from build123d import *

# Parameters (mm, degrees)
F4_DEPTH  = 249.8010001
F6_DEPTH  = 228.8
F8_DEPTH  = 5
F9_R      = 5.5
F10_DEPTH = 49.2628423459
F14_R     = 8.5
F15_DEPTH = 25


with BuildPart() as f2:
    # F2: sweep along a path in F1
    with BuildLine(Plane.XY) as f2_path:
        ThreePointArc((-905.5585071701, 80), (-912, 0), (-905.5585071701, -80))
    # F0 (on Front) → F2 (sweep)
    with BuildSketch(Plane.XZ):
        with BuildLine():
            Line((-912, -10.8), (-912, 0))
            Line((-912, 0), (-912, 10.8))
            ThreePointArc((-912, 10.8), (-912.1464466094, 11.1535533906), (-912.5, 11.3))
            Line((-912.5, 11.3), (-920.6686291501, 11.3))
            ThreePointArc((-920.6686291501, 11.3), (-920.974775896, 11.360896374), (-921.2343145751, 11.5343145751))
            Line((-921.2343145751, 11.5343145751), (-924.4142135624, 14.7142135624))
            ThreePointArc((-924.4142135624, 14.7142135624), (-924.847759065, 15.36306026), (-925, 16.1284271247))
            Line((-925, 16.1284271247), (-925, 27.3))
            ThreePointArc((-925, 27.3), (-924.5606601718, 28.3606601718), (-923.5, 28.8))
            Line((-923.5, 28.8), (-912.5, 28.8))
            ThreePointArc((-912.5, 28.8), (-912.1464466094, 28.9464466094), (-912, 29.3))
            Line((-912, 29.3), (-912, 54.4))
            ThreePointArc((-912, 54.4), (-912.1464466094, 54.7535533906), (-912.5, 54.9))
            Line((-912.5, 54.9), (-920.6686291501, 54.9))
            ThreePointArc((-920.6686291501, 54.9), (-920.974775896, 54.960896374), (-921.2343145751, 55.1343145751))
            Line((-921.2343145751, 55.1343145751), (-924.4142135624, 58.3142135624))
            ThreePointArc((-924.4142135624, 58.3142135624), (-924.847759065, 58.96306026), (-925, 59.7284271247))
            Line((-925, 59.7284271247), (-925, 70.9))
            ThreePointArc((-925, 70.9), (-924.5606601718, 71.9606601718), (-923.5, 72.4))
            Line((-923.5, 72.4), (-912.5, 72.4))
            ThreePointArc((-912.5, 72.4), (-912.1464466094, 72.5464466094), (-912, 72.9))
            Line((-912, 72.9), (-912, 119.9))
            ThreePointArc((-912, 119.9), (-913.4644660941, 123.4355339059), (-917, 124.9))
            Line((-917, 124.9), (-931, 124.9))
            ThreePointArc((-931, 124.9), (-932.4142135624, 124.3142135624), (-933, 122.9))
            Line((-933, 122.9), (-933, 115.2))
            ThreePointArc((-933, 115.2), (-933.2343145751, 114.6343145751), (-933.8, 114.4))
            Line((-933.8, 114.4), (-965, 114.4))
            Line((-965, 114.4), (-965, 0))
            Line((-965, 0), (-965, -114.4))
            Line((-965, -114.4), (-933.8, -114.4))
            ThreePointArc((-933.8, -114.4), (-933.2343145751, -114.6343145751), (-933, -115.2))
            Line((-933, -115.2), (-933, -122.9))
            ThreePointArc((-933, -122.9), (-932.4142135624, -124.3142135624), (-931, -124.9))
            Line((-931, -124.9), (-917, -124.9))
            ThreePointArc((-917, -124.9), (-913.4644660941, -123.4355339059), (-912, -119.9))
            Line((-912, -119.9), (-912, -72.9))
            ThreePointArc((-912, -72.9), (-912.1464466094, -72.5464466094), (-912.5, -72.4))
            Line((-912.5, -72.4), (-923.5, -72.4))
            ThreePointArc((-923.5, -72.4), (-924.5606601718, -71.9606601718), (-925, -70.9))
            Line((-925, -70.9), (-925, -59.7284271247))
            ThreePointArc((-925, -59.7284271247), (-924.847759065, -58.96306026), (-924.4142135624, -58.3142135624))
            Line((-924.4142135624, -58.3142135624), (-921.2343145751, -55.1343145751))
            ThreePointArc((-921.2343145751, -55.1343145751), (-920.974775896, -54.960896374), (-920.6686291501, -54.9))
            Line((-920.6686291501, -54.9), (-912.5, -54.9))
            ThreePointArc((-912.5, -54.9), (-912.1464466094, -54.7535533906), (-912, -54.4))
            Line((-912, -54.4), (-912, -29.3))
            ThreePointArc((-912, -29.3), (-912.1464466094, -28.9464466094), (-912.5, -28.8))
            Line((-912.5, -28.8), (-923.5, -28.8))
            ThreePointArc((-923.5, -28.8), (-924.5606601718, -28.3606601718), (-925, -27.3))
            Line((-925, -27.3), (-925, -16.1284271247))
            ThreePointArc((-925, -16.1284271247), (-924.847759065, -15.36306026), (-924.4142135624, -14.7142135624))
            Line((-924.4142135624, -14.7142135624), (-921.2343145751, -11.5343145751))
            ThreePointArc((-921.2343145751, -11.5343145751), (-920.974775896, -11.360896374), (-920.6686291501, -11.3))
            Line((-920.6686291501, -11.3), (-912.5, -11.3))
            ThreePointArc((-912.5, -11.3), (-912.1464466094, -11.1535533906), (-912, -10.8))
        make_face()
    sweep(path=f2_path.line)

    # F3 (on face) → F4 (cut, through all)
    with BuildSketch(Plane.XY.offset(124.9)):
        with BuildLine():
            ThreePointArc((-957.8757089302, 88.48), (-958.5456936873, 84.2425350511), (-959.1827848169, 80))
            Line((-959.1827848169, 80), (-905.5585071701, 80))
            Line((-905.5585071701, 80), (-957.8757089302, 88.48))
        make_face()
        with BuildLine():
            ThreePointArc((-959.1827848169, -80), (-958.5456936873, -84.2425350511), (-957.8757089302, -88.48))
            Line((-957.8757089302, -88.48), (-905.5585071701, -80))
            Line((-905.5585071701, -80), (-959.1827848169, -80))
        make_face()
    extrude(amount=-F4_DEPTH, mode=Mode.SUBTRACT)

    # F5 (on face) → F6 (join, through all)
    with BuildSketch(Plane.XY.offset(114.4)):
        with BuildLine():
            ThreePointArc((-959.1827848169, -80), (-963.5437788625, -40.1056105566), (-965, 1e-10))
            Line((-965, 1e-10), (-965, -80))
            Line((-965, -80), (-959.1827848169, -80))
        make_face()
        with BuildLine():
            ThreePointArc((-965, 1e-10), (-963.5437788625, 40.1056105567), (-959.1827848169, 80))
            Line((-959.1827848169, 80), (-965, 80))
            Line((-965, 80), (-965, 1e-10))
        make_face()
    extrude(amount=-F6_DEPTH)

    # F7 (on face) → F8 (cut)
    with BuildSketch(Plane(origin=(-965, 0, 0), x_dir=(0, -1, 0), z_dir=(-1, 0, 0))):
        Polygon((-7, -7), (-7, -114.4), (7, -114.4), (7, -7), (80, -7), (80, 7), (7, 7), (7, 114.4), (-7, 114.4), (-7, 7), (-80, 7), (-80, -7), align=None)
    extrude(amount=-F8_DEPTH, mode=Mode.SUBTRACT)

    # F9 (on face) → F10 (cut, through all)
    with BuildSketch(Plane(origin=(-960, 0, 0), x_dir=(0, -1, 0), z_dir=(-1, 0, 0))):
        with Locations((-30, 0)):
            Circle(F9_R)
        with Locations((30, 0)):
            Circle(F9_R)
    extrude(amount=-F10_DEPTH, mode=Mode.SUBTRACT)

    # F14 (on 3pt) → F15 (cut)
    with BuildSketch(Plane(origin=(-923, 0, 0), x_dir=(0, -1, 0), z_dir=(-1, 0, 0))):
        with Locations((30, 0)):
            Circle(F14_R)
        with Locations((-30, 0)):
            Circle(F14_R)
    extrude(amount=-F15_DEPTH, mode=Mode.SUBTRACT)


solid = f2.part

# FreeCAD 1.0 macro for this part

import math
import FreeCAD as App
import Part
import Sketcher

doc = App.newDocument("Part")
body = doc.addObject("PartDesign::Body", "Body")

# Sketch on XZ plane
sketch1 = body.newObject("Sketcher::SketchObject", "Sketch")
sketch1.AttachmentSupport = (doc.getObject("XZ_Plane"), [""])
sketch1.MapMode = "FlatFace"
sketch1.addGeometry([
    Part.LineSegment(App.Vector(-912, -10.8, 0), App.Vector(-912, 10.8, 0)),  # 0
    Part.ArcOfCircle(Part.Circle(App.Vector(-912.5, 10.8, 0), App.Vector(0, 0, 1), 0.5), math.radians(0), math.radians(90)),  # 1
    Part.LineSegment(App.Vector(-912.5, 11.3, 0), App.Vector(-920.668629, 11.3, 0)),  # 2
    Part.ArcOfCircle(Part.Circle(App.Vector(-920.668629, 12.1, 0), App.Vector(0, 0, 1), 0.8), math.radians(-135), math.radians(-90)),  # 3
    Part.LineSegment(App.Vector(-921.234315, 11.534315, 0), App.Vector(-924.414214, 14.714214, 0)),  # 4
    Part.ArcOfCircle(Part.Circle(App.Vector(-923, 16.128427, 0), App.Vector(0, 0, 1), 2), math.radians(180), math.radians(225)),  # 5
    Part.LineSegment(App.Vector(-925, 16.128427, 0), App.Vector(-925, 27.3, 0)),  # 6
    Part.ArcOfCircle(Part.Circle(App.Vector(-923.5, 27.3, 0), App.Vector(0, 0, 1), 1.5), math.radians(90), math.radians(180)),  # 7
    Part.LineSegment(App.Vector(-923.5, 28.8, 0), App.Vector(-912.5, 28.8, 0)),  # 8
    Part.ArcOfCircle(Part.Circle(App.Vector(-912.5, 29.3, 0), App.Vector(0, 0, 1), 0.5), math.radians(-90), math.radians(0)),  # 9
    Part.LineSegment(App.Vector(-912, 29.3, 0), App.Vector(-912, 54.4, 0)),  # 10
    Part.ArcOfCircle(Part.Circle(App.Vector(-912.5, 54.4, 0), App.Vector(0, 0, 1), 0.5), math.radians(0), math.radians(90)),  # 11
    Part.LineSegment(App.Vector(-912.5, 54.9, 0), App.Vector(-920.668629, 54.9, 0)),  # 12
    Part.ArcOfCircle(Part.Circle(App.Vector(-920.668629, 55.7, 0), App.Vector(0, 0, 1), 0.8), math.radians(-135), math.radians(-90)),  # 13
    Part.LineSegment(App.Vector(-921.234315, 55.134315, 0), App.Vector(-924.414214, 58.314214, 0)),  # 14
    Part.ArcOfCircle(Part.Circle(App.Vector(-923, 59.728427, 0), App.Vector(0, 0, 1), 2), math.radians(180), math.radians(225)),  # 15
    Part.LineSegment(App.Vector(-925, 59.728427, 0), App.Vector(-925, 70.9, 0)),  # 16
    Part.ArcOfCircle(Part.Circle(App.Vector(-923.5, 70.9, 0), App.Vector(0, 0, 1), 1.5), math.radians(90), math.radians(180)),  # 17
    Part.LineSegment(App.Vector(-923.5, 72.4, 0), App.Vector(-912.5, 72.4, 0)),  # 18
    Part.ArcOfCircle(Part.Circle(App.Vector(-912.5, 72.9, 0), App.Vector(0, 0, 1), 0.5), math.radians(-90), math.radians(0)),  # 19
    Part.LineSegment(App.Vector(-912, 72.9, 0), App.Vector(-912, 119.9, 0)),  # 20
    Part.ArcOfCircle(Part.Circle(App.Vector(-917, 119.9, 0), App.Vector(0, 0, 1), 5), math.radians(0), math.radians(90)),  # 21
    Part.LineSegment(App.Vector(-917, 124.9, 0), App.Vector(-931, 124.9, 0)),  # 22
    Part.ArcOfCircle(Part.Circle(App.Vector(-931, 122.9, 0), App.Vector(0, 0, 1), 2), math.radians(90), math.radians(180)),  # 23
    Part.LineSegment(App.Vector(-933, 122.9, 0), App.Vector(-933, 115.2, 0)),  # 24
    Part.ArcOfCircle(Part.Circle(App.Vector(-933.8, 115.2, 0), App.Vector(0, 0, 1), 0.8), math.radians(-90), math.radians(0)),  # 25
    Part.LineSegment(App.Vector(-933.8, 114.4, 0), App.Vector(-965, 114.4, 0)),  # 26
    Part.LineSegment(App.Vector(-965, 114.4, 0), App.Vector(-965, -114.4, 0)),  # 27
    Part.LineSegment(App.Vector(-965, -114.4, 0), App.Vector(-933.8, -114.4, 0)),  # 28
    Part.ArcOfCircle(Part.Circle(App.Vector(-933.8, -115.2, 0), App.Vector(0, 0, 1), 0.8), math.radians(0), math.radians(90)),  # 29
    Part.LineSegment(App.Vector(-933, -115.2, 0), App.Vector(-933, -122.9, 0)),  # 30
    Part.ArcOfCircle(Part.Circle(App.Vector(-931, -122.9, 0), App.Vector(0, 0, 1), 2), math.radians(180), math.radians(270)),  # 31
    Part.LineSegment(App.Vector(-931, -124.9, 0), App.Vector(-917, -124.9, 0)),  # 32
    Part.ArcOfCircle(Part.Circle(App.Vector(-917, -119.9, 0), App.Vector(0, 0, 1), 5), math.radians(-90), math.radians(0)),  # 33
    Part.LineSegment(App.Vector(-912, -119.9, 0), App.Vector(-912, -72.9, 0)),  # 34
    Part.ArcOfCircle(Part.Circle(App.Vector(-912.5, -72.9, 0), App.Vector(0, 0, 1), 0.5), math.radians(0), math.radians(90)),  # 35
    Part.LineSegment(App.Vector(-912.5, -72.4, 0), App.Vector(-923.5, -72.4, 0)),  # 36
    Part.ArcOfCircle(Part.Circle(App.Vector(-923.5, -70.9, 0), App.Vector(0, 0, 1), 1.5), math.radians(180), math.radians(270)),  # 37
    Part.LineSegment(App.Vector(-925, -70.9, 0), App.Vector(-925, -59.728427, 0)),  # 38
    Part.ArcOfCircle(Part.Circle(App.Vector(-923, -59.728427, 0), App.Vector(0, 0, 1), 2), math.radians(135), math.radians(180)),  # 39
    Part.LineSegment(App.Vector(-924.414214, -58.314214, 0), App.Vector(-921.234315, -55.134315, 0)),  # 40
    Part.ArcOfCircle(Part.Circle(App.Vector(-920.668629, -55.7, 0), App.Vector(0, 0, 1), 0.8), math.radians(90), math.radians(135)),  # 41
    Part.LineSegment(App.Vector(-920.668629, -54.9, 0), App.Vector(-912.5, -54.9, 0)),  # 42
    Part.ArcOfCircle(Part.Circle(App.Vector(-912.5, -54.4, 0), App.Vector(0, 0, 1), 0.5), math.radians(-90), math.radians(0)),  # 43
    Part.LineSegment(App.Vector(-912, -54.4, 0), App.Vector(-912, -29.3, 0)),  # 44
    Part.ArcOfCircle(Part.Circle(App.Vector(-912.5, -29.3, 0), App.Vector(0, 0, 1), 0.5), math.radians(0), math.radians(90)),  # 45
    Part.LineSegment(App.Vector(-912.5, -28.8, 0), App.Vector(-923.5, -28.8, 0)),  # 46
    Part.ArcOfCircle(Part.Circle(App.Vector(-923.5, -27.3, 0), App.Vector(0, 0, 1), 1.5), math.radians(180), math.radians(270)),  # 47
    Part.LineSegment(App.Vector(-925, -27.3, 0), App.Vector(-925, -16.128427, 0)),  # 48
    Part.ArcOfCircle(Part.Circle(App.Vector(-923, -16.128427, 0), App.Vector(0, 0, 1), 2), math.radians(135), math.radians(180)),  # 49
    Part.LineSegment(App.Vector(-924.414214, -14.714214, 0), App.Vector(-921.234315, -11.534315, 0)),  # 50
    Part.ArcOfCircle(Part.Circle(App.Vector(-920.668629, -12.1, 0), App.Vector(0, 0, 1), 0.8), math.radians(90), math.radians(135)),  # 51
    Part.LineSegment(App.Vector(-920.668629, -11.3, 0), App.Vector(-912.5, -11.3, 0)),  # 52
    Part.ArcOfCircle(Part.Circle(App.Vector(-912.5, -10.8, 0), App.Vector(0, 0, 1), 0.5), math.radians(-90), math.radians(0)),  # 53
], False)
sketch1.addConstraint([
    Sketcher.Constraint("Tangent", 0, 2, 1, 1),
    Sketcher.Constraint("Tangent", 1, 2, 2, 1),
    Sketcher.Constraint("Tangent", 2, 2, 3, 2),
    Sketcher.Constraint("Tangent", 3, 1, 4, 1),
    Sketcher.Constraint("Tangent", 4, 2, 5, 2),
    Sketcher.Constraint("Tangent", 5, 1, 6, 1),
    Sketcher.Constraint("Tangent", 6, 2, 7, 2),
    Sketcher.Constraint("Tangent", 7, 1, 8, 1),
    Sketcher.Constraint("Tangent", 8, 2, 9, 1),
    Sketcher.Constraint("Tangent", 9, 2, 10, 1),
    Sketcher.Constraint("Tangent", 10, 2, 11, 1),
    Sketcher.Constraint("Tangent", 11, 2, 12, 1),
    Sketcher.Constraint("Tangent", 12, 2, 13, 2),
    Sketcher.Constraint("Tangent", 13, 1, 14, 1),
    Sketcher.Constraint("Tangent", 14, 2, 15, 2),
    Sketcher.Constraint("Tangent", 15, 1, 16, 1),
    Sketcher.Constraint("Tangent", 16, 2, 17, 2),
    Sketcher.Constraint("Tangent", 17, 1, 18, 1),
    Sketcher.Constraint("Tangent", 18, 2, 19, 1),
    Sketcher.Constraint("Tangent", 19, 2, 20, 1),
    Sketcher.Constraint("Tangent", 20, 2, 21, 1),
    Sketcher.Constraint("Tangent", 21, 2, 22, 1),
    Sketcher.Constraint("Tangent", 22, 2, 23, 1),
    Sketcher.Constraint("Tangent", 23, 2, 24, 1),
    Sketcher.Constraint("Tangent", 24, 2, 25, 2),
    Sketcher.Constraint("Tangent", 25, 1, 26, 1),
    Sketcher.Constraint("Coincident", 26, 2, 27, 1),
    Sketcher.Constraint("Coincident", 27, 2, 28, 1),
    Sketcher.Constraint("Tangent", 28, 2, 29, 2),
    Sketcher.Constraint("Tangent", 29, 1, 30, 1),
    Sketcher.Constraint("Tangent", 30, 2, 31, 1),
    Sketcher.Constraint("Tangent", 31, 2, 32, 1),
    Sketcher.Constraint("Tangent", 32, 2, 33, 1),
    Sketcher.Constraint("Tangent", 33, 2, 34, 1),
    Sketcher.Constraint("Tangent", 34, 2, 35, 1),
    Sketcher.Constraint("Tangent", 35, 2, 36, 1),
    Sketcher.Constraint("Tangent", 36, 2, 37, 2),
    Sketcher.Constraint("Tangent", 37, 1, 38, 1),
    Sketcher.Constraint("Tangent", 38, 2, 39, 2),
    Sketcher.Constraint("Tangent", 39, 1, 40, 1),
    Sketcher.Constraint("Tangent", 40, 2, 41, 2),
    Sketcher.Constraint("Tangent", 41, 1, 42, 1),
    Sketcher.Constraint("Tangent", 42, 2, 43, 1),
    Sketcher.Constraint("Tangent", 43, 2, 44, 1),
    Sketcher.Constraint("Tangent", 44, 2, 45, 1),
    Sketcher.Constraint("Tangent", 45, 2, 46, 1),
    Sketcher.Constraint("Tangent", 46, 2, 47, 2),
    Sketcher.Constraint("Tangent", 47, 1, 48, 1),
    Sketcher.Constraint("Tangent", 48, 2, 49, 2),
    Sketcher.Constraint("Tangent", 49, 1, 50, 1),
    Sketcher.Constraint("Tangent", 50, 2, 51, 2),
    Sketcher.Constraint("Tangent", 51, 1, 52, 1),
    Sketcher.Constraint("Tangent", 52, 2, 53, 1),
    Sketcher.Constraint("Tangent", 53, 2, 0, 1),
    Sketcher.Constraint("Vertical", 0),
    Sketcher.Constraint("Horizontal", 2),
    Sketcher.Constraint("Vertical", 6),
    Sketcher.Constraint("Horizontal", 8),
    Sketcher.Constraint("Vertical", 10),
    Sketcher.Constraint("Horizontal", 12),
    Sketcher.Constraint("Vertical", 16),
    Sketcher.Constraint("Horizontal", 18),
    Sketcher.Constraint("Vertical", 20),
    Sketcher.Constraint("Horizontal", 22),
    Sketcher.Constraint("Vertical", 24),
    Sketcher.Constraint("Horizontal", 26),
    Sketcher.Constraint("Vertical", 27),
    Sketcher.Constraint("Horizontal", 28),
    Sketcher.Constraint("Vertical", 30),
    Sketcher.Constraint("Horizontal", 32),
    Sketcher.Constraint("Vertical", 34),
    Sketcher.Constraint("Horizontal", 36),
    Sketcher.Constraint("Vertical", 38),
    Sketcher.Constraint("Horizontal", 42),
    Sketcher.Constraint("Vertical", 44),
    Sketcher.Constraint("Horizontal", 46),
    Sketcher.Constraint("Vertical", 48),
    Sketcher.Constraint("Horizontal", 52),
    Sketcher.Constraint("Equal", 1, 9),
    Sketcher.Constraint("Equal", 9, 11),
    Sketcher.Constraint("Equal", 3, 13),
    Sketcher.Constraint("Equal", 5, 15),
    Sketcher.Constraint("Equal", 7, 17),
    Sketcher.Constraint("Equal", 11, 19),
    Sketcher.Constraint("Equal", 15, 23),
    Sketcher.Constraint("Equal", 13, 25),
    Sketcher.Constraint("Equal", 25, 29),
    Sketcher.Constraint("Equal", 23, 31),
    Sketcher.Constraint("Equal", 21, 33),
    Sketcher.Constraint("Equal", 19, 35),
    Sketcher.Constraint("Equal", 17, 37),
    Sketcher.Constraint("Equal", 31, 39),
    Sketcher.Constraint("Equal", 29, 41),
    Sketcher.Constraint("Equal", 35, 43),
    Sketcher.Constraint("Equal", 43, 45),
    Sketcher.Constraint("Equal", 37, 47),
    Sketcher.Constraint("Equal", 39, 49),
    Sketcher.Constraint("Equal", 41, 51),
    Sketcher.Constraint("Equal", 45, 53),
    Sketcher.Constraint("Symmetric", 25, 3, 29, 3, -1),
    Sketcher.Constraint("Symmetric", 21, 3, 33, 3, -1),
    Sketcher.Constraint("Symmetric", 17, 3, 37, 3, -1),
    Sketcher.Constraint("Symmetric", 13, 3, 41, 3, -1),
    Sketcher.Constraint("Symmetric", 9, 3, 45, 3, -1),
    Sketcher.Constraint("Symmetric", 5, 3, 49, 3, -1),
    Sketcher.Constraint("Symmetric", 3, 3, 51, 3, -1),
    Sketcher.Constraint("Parallel", 4, 14),
    Sketcher.Constraint("Perpendicular", 14, 40),
    Sketcher.Constraint("Parallel", 40, 50),
    Sketcher.Constraint("Vertical", 1, 3, 9, 3),
    Sketcher.Constraint("Vertical", 3, 3, 13, 3),
    Sketcher.Constraint("Vertical", 5, 3, 15, 3),
    Sketcher.Constraint("Vertical", 11, 3, 19, 3),
    Sketcher.Constraint("Equal", 6, 16),
    Sketcher.Constraint("Radius", 5, 2.0),
    Sketcher.Constraint("Radius", 21, 5.0),
    Sketcher.Constraint("Radius", 1, 0.5),
    Sketcher.Constraint("Radius", 3, 0.8),
    Sketcher.Constraint("Radius", 7, 1.5),
    Sketcher.Constraint("DistanceX", 8, 1, 8, 2, 11.0),
    Sketcher.Constraint("DistanceX", 22, 2, 22, 1, 14.0),
    Sketcher.Constraint("DistanceY", 20, 1, 20, 2, 47.0),
    Sketcher.Constraint("DistanceX", 26, 2, 26, 1, 31.2),
    Sketcher.Constraint("DistanceY", 0, 1, 0, 2, 21.6),
    Sketcher.Constraint("DistanceY", 10, 1, 10, 2, 25.1),
    Sketcher.Constraint("DistanceY", 24, 2, 24, 1, 7.7),
    Sketcher.Constraint("DistanceY", 27, 2, 27, 1, 228.8),
    Sketcher.Constraint("DistanceX", 5, 3, -1, 1, 923.0),
    Sketcher.Constraint("DistanceX", 2, 2, 2, 1, 8.168629),
])

# Sketch on XY plane
sketch2 = body.newObject("Sketcher::SketchObject", "Sketch001")
sketch2.AttachmentSupport = (doc.getObject("XY_Plane"), [""])
sketch2.MapMode = "FlatFace"
sketch2.addGeometry(Part.ArcOfCircle(Part.Circle(App.Vector(-412, 0, 0), App.Vector(0, 0, 1), 500), math.radians(170.793104), math.radians(189.206896)), False)
sketch2.addConstraint([
    Sketcher.Constraint("Symmetric", 0, 1, 0, 2, -1),
    Sketcher.Constraint("Radius", 0, 500.0),
    Sketcher.Constraint("DistanceX", 0, 3, -1, 1, 412.0),
    Sketcher.Constraint("DistanceY", -1, 1, 0, 1, 80.0),
])
doc.recompute()

additivepipe = body.newObject("PartDesign::AdditivePipe", "AdditivePipe")
additivepipe.Profile = sketch1
additivepipe.Spine = (sketch2, ["Edge1"])

# Sketch on XY plane
sketch3 = body.newObject("Sketcher::SketchObject", "Sketch002")
sketch3.AttachmentSupport = (doc.getObject("XY_Plane"), [""])
sketch3.MapMode = "FlatFace"
sketch3.AttachmentOffset = App.Placement(App.Vector(0, 0, 124.9), App.Rotation())
sketch3.addGeometry([
    Part.ArcOfCircle(Part.Circle(App.Vector(-411.999999, 0, 0), App.Vector(0, 0, 1), 553.000001), math.radians(170.793104), math.radians(171.682093)),  # 0
    Part.LineSegment(App.Vector(-959.182785, 80, 0), App.Vector(-905.558507, 80, 0)),  # 1
    Part.LineSegment(App.Vector(-905.558507, 80, 0), App.Vector(-957.875709, 88.48, 0)),  # 2
    Part.ArcOfCircle(Part.Circle(App.Vector(-411.999999, 0, 0), App.Vector(0, 0, 1), 553.000001), math.radians(-171.682093), math.radians(-170.793104)),  # 3
    Part.LineSegment(App.Vector(-957.875709, -88.48, 0), App.Vector(-905.558507, -80, 0)),  # 4
    Part.LineSegment(App.Vector(-905.558507, -80, 0), App.Vector(-959.182785, -80, 0)),  # 5
], False)
sketch3.addConstraint([
    Sketcher.Constraint("Coincident", 0, 2, 1, 1),
    Sketcher.Constraint("Coincident", 1, 2, 2, 1),
    Sketcher.Constraint("Coincident", 2, 2, 0, 1),
    Sketcher.Constraint("Coincident", 3, 2, 4, 1),
    Sketcher.Constraint("Coincident", 4, 2, 5, 1),
    Sketcher.Constraint("Coincident", 5, 2, 3, 1),
    Sketcher.Constraint("Horizontal", 1),
    Sketcher.Constraint("Horizontal", 5),
    Sketcher.Constraint("Coincident", 3, 3, 0, 3),
    Sketcher.Constraint("Equal", 0, 3),
    Sketcher.Constraint("Symmetric", 1, 2, 4, 2, -1),
    Sketcher.Constraint("PointOnObject", 0, 3, -1),
    Sketcher.Constraint("Vertical", 2, 2, 3, 2),
    Sketcher.Constraint("Radius", 0, 553.000001),
    Sketcher.Constraint("Distance", 2, 53.0),
    Sketcher.Constraint("DistanceX", 0, 3, -1, 1, 411.999999),
    Sketcher.Constraint("DistanceY", -1, 1, 1, 2, 80.0),
    Sketcher.Constraint("DistanceY", -1, 1, 2, 2, 88.48),
])
pocket1 = body.newObject("PartDesign::Pocket", "Pocket")
pocket1.Profile = sketch3
pocket1.Type = "ThroughAll"

# Sketch on XY plane
sketch4 = body.newObject("Sketcher::SketchObject", "Sketch003")
sketch4.AttachmentSupport = (doc.getObject("XY_Plane"), [""])
sketch4.MapMode = "FlatFace"
sketch4.AttachmentOffset = App.Placement(App.Vector(0, 0, 114.4), App.Rotation())
sketch4.addGeometry([
    Part.ArcOfCircle(Part.Circle(App.Vector(-412, 0, 0), App.Vector(0, 0, 1), 553), math.radians(180), math.radians(188.317907)),  # 0
    Part.LineSegment(App.Vector(-965, 0, 0), App.Vector(-965, -80, 0)),  # 1
    Part.LineSegment(App.Vector(-965, -80, 0), App.Vector(-959.182785, -80, 0)),  # 2
    Part.ArcOfCircle(Part.Circle(App.Vector(-412, 0, 0), App.Vector(0, 0, 1), 553), math.radians(171.682093), math.radians(180)),  # 3
    Part.LineSegment(App.Vector(-959.182785, 80, 0), App.Vector(-965, 80, 0)),  # 4
    Part.LineSegment(App.Vector(-965, 80, 0), App.Vector(-965, 0, 0)),  # 5
], False)
sketch4.addConstraint([
    Sketcher.Constraint("Tangent", 0, 1, 1, 1),
    Sketcher.Constraint("Coincident", 1, 2, 2, 1),
    Sketcher.Constraint("Coincident", 2, 2, 0, 2),
    Sketcher.Constraint("Coincident", 3, 1, 4, 1),
    Sketcher.Constraint("Coincident", 4, 2, 5, 1),
    Sketcher.Constraint("Tangent", 5, 2, 3, 2),
    Sketcher.Constraint("Vertical", 1),
    Sketcher.Constraint("Horizontal", 2),
    Sketcher.Constraint("Horizontal", 4),
    Sketcher.Constraint("Vertical", 5),
    Sketcher.Constraint("Coincident", 3, 3, 0, 3),
    Sketcher.Constraint("Equal", 0, 3),
    Sketcher.Constraint("PointOnObject", 0, 3, -1),
    Sketcher.Constraint("Equal", 2, 4),
    Sketcher.Constraint("Radius", 0, 553.0),
    Sketcher.Constraint("DistanceY", 1, 2, 1, 1, 80.0),
    Sketcher.Constraint("DistanceX", 0, 3, -1, 1, 412.0),
])
pad1 = body.newObject("PartDesign::Pad", "Pad")
pad1.Profile = sketch4
pad1.Type = "UpToLast"
pad1.Reversed = True

# Sketch on YZ plane
sketch5 = body.newObject("Sketcher::SketchObject", "Sketch004")
sketch5.AttachmentSupport = (doc.getObject("YZ_Plane"), [""])
sketch5.MapMode = "FlatFace"
sketch5.AttachmentOffset = App.Placement(App.Vector(0, 0, -965), App.Rotation())
sketch5.addGeometry([
    Part.LineSegment(App.Vector(7, -7, 0), App.Vector(7, -114.4, 0)),  # 0
    Part.LineSegment(App.Vector(7, -114.4, 0), App.Vector(-7, -114.4, 0)),  # 1
    Part.LineSegment(App.Vector(-7, -114.4, 0), App.Vector(-7, -7, 0)),  # 2
    Part.LineSegment(App.Vector(-7, -7, 0), App.Vector(-80, -7, 0)),  # 3
    Part.LineSegment(App.Vector(-80, -7, 0), App.Vector(-80, 7, 0)),  # 4
    Part.LineSegment(App.Vector(-80, 7, 0), App.Vector(-7, 7, 0)),  # 5
    Part.LineSegment(App.Vector(-7, 7, 0), App.Vector(-7, 114.4, 0)),  # 6
    Part.LineSegment(App.Vector(-7, 114.4, 0), App.Vector(7, 114.4, 0)),  # 7
    Part.LineSegment(App.Vector(7, 114.4, 0), App.Vector(7, 7, 0)),  # 8
    Part.LineSegment(App.Vector(7, 7, 0), App.Vector(80, 7, 0)),  # 9
    Part.LineSegment(App.Vector(80, 7, 0), App.Vector(80, -7, 0)),  # 10
    Part.LineSegment(App.Vector(80, -7, 0), App.Vector(7, -7, 0)),  # 11
], False)
sketch5.addConstraint([
    Sketcher.Constraint("Coincident", 0, 2, 1, 1),
    Sketcher.Constraint("Coincident", 1, 2, 2, 1),
    Sketcher.Constraint("Coincident", 2, 2, 3, 1),
    Sketcher.Constraint("Coincident", 3, 2, 4, 1),
    Sketcher.Constraint("Coincident", 4, 2, 5, 1),
    Sketcher.Constraint("Coincident", 5, 2, 6, 1),
    Sketcher.Constraint("Coincident", 6, 2, 7, 1),
    Sketcher.Constraint("Coincident", 7, 2, 8, 1),
    Sketcher.Constraint("Coincident", 8, 2, 9, 1),
    Sketcher.Constraint("Coincident", 9, 2, 10, 1),
    Sketcher.Constraint("Coincident", 10, 2, 11, 1),
    Sketcher.Constraint("Coincident", 11, 2, 0, 1),
    Sketcher.Constraint("Vertical", 0),
    Sketcher.Constraint("Horizontal", 1),
    Sketcher.Constraint("Vertical", 2),
    Sketcher.Constraint("Horizontal", 3),
    Sketcher.Constraint("Vertical", 4),
    Sketcher.Constraint("Horizontal", 5),
    Sketcher.Constraint("Vertical", 6),
    Sketcher.Constraint("Horizontal", 7),
    Sketcher.Constraint("Vertical", 8),
    Sketcher.Constraint("Horizontal", 9),
    Sketcher.Constraint("Vertical", 10),
    Sketcher.Constraint("Horizontal", 11),
    Sketcher.Constraint("Symmetric", 0, 2, 6, 2, -1, 1),
    Sketcher.Constraint("Symmetric", 2, 2, 8, 2, -1, 1),
    Sketcher.Constraint("Symmetric", 4, 2, 10, 2, -1, 1),
    Sketcher.Constraint("Symmetric", 5, 2, 8, 2, -2),
    Sketcher.Constraint("Equal", 7, 4),
    Sketcher.Constraint("DistanceX", 1, 2, 1, 1, 14.0),
    Sketcher.Constraint("DistanceX", 3, 2, 3, 1, 73.0),
    Sketcher.Constraint("DistanceY", 0, 2, 0, 1, 107.4),
])
pocket2 = body.newObject("PartDesign::Pocket", "Pocket001")
pocket2.Profile = sketch5
pocket2.Length = 5
pocket2.Reversed = True

# Sketch on YZ plane
sketch6 = body.newObject("Sketcher::SketchObject", "Sketch005")
sketch6.AttachmentSupport = (doc.getObject("YZ_Plane"), [""])
sketch6.MapMode = "FlatFace"
sketch6.AttachmentOffset = App.Placement(App.Vector(0, 0, -960), App.Rotation())
sketch6.addGeometry([
    Part.Circle(App.Vector(30, 0, 0), App.Vector(0, 0, 1), 5.5),
    Part.Circle(App.Vector(-30, 0, 0), App.Vector(0, 0, 1), 5.5),
], False)
sketch6.addConstraint([
    Sketcher.Constraint("Equal", 0, 1),
    Sketcher.Constraint("Symmetric", 0, 3, 1, 3, -1, 1),
    Sketcher.Constraint("PointOnObject", 0, 3, -1),
    Sketcher.Constraint("Diameter", 0, 11.0),
    Sketcher.Constraint("DistanceX", -1, 1, 0, 3, 30.0),
])
pocket3 = body.newObject("PartDesign::Pocket", "Pocket002")
pocket3.Profile = sketch6
pocket3.Type = "ThroughAll"
pocket3.Reversed = True

# Sketch on YZ plane
sketch7 = body.newObject("Sketcher::SketchObject", "Sketch006")
sketch7.AttachmentSupport = (doc.getObject("YZ_Plane"), [""])
sketch7.MapMode = "FlatFace"
sketch7.AttachmentOffset = App.Placement(App.Vector(0, 0, -923), App.Rotation())
sketch7.addGeometry([
    Part.Circle(App.Vector(-30, 0, 0), App.Vector(0, 0, 1), 8.5),
    Part.Circle(App.Vector(30, 0, 0), App.Vector(0, 0, 1), 8.5),
], False)
sketch7.addConstraint([
    Sketcher.Constraint("Equal", 0, 1),
    Sketcher.Constraint("Symmetric", 0, 3, 1, 3, -1, 1),
    Sketcher.Constraint("PointOnObject", 0, 3, -1),
    Sketcher.Constraint("Diameter", 0, 17.0),
    Sketcher.Constraint("DistanceX", 0, 3, -1, 1, 30.0),
])
pocket4 = body.newObject("PartDesign::Pocket", "Pocket003")
pocket4.Profile = sketch7
pocket4.Length = 25
pocket4.Reversed = True

doc.recompute()
